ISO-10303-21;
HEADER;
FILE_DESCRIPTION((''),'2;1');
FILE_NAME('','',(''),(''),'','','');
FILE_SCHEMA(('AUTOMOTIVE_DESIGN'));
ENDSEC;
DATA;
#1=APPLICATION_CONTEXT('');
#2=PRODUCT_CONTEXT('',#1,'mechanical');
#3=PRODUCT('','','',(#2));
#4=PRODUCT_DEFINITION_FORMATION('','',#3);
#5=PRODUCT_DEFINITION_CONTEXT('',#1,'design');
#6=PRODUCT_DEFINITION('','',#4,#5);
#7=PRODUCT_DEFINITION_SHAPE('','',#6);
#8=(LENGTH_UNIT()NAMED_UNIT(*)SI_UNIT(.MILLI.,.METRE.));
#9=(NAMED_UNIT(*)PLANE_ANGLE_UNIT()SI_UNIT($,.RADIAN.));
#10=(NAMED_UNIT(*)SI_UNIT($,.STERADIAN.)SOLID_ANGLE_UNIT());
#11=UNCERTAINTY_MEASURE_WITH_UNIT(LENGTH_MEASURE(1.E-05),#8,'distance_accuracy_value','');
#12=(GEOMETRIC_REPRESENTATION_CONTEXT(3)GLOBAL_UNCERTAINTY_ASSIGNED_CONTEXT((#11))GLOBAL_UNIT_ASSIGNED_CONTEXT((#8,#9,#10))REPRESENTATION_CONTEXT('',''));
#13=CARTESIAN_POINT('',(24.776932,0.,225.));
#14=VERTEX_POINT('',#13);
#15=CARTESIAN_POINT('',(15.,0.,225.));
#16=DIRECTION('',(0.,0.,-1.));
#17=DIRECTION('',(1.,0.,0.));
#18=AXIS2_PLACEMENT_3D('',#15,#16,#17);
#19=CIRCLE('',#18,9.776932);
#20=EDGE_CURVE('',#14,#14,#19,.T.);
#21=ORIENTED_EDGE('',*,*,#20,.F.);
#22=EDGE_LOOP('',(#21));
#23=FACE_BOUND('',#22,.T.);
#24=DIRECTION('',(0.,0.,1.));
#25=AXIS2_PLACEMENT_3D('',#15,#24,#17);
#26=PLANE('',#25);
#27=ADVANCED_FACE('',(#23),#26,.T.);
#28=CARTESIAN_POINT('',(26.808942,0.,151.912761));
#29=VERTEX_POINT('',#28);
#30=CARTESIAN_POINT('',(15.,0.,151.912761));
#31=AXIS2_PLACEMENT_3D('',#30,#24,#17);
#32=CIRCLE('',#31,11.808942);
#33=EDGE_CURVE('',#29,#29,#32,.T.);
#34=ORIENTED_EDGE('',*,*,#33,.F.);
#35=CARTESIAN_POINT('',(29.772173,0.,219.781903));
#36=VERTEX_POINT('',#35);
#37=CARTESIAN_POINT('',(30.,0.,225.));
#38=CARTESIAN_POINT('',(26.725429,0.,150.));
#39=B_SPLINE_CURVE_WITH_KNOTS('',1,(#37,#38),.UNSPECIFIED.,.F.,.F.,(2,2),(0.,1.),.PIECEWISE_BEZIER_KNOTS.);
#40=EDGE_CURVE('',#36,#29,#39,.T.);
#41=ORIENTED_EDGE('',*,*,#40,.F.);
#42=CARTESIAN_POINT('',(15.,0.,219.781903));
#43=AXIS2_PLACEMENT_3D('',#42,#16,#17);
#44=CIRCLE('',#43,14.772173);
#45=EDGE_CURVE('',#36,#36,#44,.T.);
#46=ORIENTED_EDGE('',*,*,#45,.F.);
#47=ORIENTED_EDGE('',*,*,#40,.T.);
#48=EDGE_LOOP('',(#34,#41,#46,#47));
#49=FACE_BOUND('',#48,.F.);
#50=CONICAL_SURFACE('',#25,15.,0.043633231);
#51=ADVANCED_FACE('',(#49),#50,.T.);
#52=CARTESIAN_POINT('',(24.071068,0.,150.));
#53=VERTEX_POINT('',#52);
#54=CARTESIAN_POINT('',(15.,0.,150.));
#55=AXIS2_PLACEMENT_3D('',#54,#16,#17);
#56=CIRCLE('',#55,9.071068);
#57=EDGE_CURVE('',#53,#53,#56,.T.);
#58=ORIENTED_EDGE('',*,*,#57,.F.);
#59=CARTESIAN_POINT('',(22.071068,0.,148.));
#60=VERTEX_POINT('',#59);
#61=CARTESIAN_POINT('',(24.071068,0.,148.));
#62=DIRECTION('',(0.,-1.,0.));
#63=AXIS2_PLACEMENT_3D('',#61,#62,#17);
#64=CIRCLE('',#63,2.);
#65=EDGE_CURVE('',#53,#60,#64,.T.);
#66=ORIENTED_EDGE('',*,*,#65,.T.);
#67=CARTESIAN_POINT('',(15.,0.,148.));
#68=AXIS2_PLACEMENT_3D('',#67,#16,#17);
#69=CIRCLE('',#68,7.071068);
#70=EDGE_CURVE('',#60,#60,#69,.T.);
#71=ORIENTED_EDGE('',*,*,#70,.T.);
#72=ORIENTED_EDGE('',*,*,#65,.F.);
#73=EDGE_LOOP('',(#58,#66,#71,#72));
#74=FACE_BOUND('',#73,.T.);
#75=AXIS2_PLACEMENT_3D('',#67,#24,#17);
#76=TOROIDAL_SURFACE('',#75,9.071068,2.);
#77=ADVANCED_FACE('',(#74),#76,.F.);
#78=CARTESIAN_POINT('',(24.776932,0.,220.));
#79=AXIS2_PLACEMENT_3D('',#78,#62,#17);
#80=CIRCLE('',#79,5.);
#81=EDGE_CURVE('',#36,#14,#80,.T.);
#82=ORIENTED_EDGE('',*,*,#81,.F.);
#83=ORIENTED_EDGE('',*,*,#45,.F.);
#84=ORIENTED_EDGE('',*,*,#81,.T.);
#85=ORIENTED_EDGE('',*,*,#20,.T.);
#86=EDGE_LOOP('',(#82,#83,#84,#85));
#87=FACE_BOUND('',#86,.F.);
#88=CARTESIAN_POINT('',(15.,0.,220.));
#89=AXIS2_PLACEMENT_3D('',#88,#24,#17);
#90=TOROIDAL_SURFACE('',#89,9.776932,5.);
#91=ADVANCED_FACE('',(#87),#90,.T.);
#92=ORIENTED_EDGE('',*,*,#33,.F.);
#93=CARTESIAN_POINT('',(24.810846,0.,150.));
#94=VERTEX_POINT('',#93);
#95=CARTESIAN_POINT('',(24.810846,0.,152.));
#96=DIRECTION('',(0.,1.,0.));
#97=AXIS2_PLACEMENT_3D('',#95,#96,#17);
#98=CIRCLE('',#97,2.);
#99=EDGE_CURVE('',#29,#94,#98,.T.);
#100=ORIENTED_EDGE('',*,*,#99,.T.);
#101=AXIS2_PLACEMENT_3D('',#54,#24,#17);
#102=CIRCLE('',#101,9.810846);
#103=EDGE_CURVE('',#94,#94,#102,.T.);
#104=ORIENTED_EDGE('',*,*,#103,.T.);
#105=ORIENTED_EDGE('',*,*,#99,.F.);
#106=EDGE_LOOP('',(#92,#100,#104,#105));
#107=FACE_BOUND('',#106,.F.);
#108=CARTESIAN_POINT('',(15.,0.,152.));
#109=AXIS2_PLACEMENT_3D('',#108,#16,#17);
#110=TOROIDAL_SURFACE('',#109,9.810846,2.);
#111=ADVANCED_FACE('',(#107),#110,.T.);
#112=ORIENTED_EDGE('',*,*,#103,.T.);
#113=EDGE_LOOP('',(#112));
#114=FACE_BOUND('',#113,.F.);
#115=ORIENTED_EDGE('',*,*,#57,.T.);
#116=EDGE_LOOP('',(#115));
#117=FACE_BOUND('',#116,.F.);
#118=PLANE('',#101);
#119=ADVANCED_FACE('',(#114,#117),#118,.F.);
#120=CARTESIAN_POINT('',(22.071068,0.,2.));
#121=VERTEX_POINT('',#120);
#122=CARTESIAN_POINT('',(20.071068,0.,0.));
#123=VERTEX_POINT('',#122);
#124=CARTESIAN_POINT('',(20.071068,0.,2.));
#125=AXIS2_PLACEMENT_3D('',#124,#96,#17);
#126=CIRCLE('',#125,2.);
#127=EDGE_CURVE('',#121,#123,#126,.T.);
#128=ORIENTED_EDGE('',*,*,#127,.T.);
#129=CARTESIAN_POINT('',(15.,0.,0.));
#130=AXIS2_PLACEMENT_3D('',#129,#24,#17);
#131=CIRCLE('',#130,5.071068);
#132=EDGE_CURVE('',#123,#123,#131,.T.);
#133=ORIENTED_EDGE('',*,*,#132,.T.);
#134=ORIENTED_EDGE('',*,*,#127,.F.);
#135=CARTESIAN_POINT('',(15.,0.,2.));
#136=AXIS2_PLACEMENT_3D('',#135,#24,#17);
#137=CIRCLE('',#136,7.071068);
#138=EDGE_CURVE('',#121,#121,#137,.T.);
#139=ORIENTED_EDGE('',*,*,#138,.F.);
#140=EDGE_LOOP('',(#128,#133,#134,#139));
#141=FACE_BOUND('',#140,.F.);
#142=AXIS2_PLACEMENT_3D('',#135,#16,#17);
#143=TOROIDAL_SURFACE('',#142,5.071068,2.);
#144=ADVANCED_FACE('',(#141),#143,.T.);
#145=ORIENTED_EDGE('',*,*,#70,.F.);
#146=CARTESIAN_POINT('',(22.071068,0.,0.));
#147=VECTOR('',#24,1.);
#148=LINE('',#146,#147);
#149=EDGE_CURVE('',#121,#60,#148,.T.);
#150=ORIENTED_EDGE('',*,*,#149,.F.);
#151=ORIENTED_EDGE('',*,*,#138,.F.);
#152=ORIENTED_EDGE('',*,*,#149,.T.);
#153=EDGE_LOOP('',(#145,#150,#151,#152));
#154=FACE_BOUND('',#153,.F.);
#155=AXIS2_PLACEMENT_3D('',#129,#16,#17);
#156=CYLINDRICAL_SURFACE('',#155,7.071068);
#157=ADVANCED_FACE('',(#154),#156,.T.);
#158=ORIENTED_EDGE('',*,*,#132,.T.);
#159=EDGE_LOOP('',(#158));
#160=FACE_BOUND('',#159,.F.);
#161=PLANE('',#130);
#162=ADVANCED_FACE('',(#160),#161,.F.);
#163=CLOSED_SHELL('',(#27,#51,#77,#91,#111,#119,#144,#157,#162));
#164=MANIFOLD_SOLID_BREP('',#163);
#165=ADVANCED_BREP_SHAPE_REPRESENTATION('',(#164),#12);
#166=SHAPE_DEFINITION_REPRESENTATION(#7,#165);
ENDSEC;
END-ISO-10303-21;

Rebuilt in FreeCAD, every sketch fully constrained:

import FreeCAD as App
import Part
import Sketcher

V = App.Vector
Q = App.Units.Quantity


def edges_at(feature, points):
    """Names of the edges that pass closest to the given points."""
    edges = feature.Shape.Edges
    near = lambda p: min(range(len(edges)), key=lambda i: edges[i].distToShape(Part.Vertex(*p))[0])
    return sorted({f"Edge{near(p) + 1}" for p in points})

doc = App.newDocument("Part")
body = doc.addObject("PartDesign::Body", "Body")

# Sketch on XY plane
sketch1 = body.newObject("Sketcher::SketchObject", "Sketch")
sketch1.AttachmentSupport = (doc.getObject("XY_Plane"), [""])
sketch1.MapMode = "FlatFace"
sketch1.addGeometry(Part.Circle(V(15, 0, 0), V(0, 0, 1), 7.071068), False)
sketch1.addConstraint([
    Sketcher.Constraint("PointOnObject", 0, 3, -1),
    Sketcher.Constraint("DistanceX", -1, 1, 0, 3, Q("15 mm")),
    Sketcher.Constraint("Diameter", 0, Q("14.142136 mm")),
])
pad1 = body.newObject("PartDesign::Pad", "Pad")
pad1.Profile = sketch1
pad1.Length = 225

# Sketch on XY plane
sketch2 = body.newObject("Sketcher::SketchObject", "Sketch001")
sketch2.AttachmentSupport = (doc.getObject("XY_Plane"), [""])
sketch2.MapMode = "FlatFace"
sketch2.AttachmentOffset = App.Placement(V(0, 0, 225), App.Rotation())
sketch2.addGeometry(Part.Circle(V(15, 0, 0), V(0, 0, 1), 15), False)
sketch2.addConstraint([
    Sketcher.Constraint("PointOnObject", 0, 3, -1),
    Sketcher.Constraint("Diameter", 0, Q("30 mm")),
    Sketcher.Constraint("DistanceX", -1, 1, 0, 3, Q("15 mm")),
])
pad2 = body.newObject("PartDesign::Pad", "Pad001")
pad2.Profile = sketch2
pad2.Length = 75
pad2.Reversed = True
pad2.TaperAngle = -2.5
doc.recompute()

fillet = body.newObject("PartDesign::Fillet", "Fillet")
fillet.Base = (pad2, edges_at(pad2, [(7.929, 0, 0), (7.929, 0, 150), (3.275, 0, 150)]))
fillet.Radius = 2
doc.recompute()

fillet2 = body.newObject("PartDesign::Fillet", "Fillet001")
fillet2.Base = (fillet, edges_at(fillet, [(0, 0, 225)]))
fillet2.Radius = 5

doc.recompute()
